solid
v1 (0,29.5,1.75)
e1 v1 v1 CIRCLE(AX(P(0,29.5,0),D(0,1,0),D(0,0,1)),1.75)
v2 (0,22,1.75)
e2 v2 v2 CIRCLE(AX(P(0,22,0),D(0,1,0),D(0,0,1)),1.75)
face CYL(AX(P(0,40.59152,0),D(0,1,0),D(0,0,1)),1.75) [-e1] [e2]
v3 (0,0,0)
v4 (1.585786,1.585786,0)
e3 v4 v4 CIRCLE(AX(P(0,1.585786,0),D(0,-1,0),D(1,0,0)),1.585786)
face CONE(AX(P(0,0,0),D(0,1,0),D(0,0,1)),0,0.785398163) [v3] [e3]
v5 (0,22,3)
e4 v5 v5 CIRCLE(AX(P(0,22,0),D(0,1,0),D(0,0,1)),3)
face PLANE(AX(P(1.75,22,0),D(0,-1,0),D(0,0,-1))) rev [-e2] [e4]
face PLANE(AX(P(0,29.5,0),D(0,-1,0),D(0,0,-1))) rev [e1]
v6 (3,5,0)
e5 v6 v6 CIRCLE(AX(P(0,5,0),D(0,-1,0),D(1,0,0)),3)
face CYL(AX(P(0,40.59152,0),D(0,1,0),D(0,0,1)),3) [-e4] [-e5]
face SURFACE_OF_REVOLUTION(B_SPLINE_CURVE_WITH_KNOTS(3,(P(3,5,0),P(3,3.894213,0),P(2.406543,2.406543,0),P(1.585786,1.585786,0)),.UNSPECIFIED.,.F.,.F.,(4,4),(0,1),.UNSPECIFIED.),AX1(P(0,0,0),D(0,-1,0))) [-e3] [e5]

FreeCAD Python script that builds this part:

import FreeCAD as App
import Part
import Sketcher
from FreeCAD import Vector
Q = App.Units.Quantity

doc = App.newDocument("Part")
body = doc.addObject("PartDesign::Body", "Body")

sketch1 = body.newObject("Sketcher::SketchObject", "Sketch")
sketch1.AttachmentSupport = (doc.getObject("XY_Plane"), [""])
sketch1.MapMode = "FlatFace"
sketch1.addGeometry(Part.LineSegment(Vector(0, 29.5, 0), Vector(0, 0, 0)), False)
sketch1.addGeometry(Part.LineSegment(Vector(0, 0, 0), Vector(3, 3, 0)), False)
sketch1.addGeometry(Part.LineSegment(Vector(3, 3, 0), Vector(3, 22, 0)), False)
sketch1.addGeometry(Part.LineSegment(Vector(3, 22, 0), Vector(1.8, 22, 0)), False)
sketch1.addGeometry(Part.LineSegment(Vector(1.8, 22, 0), Vector(1.8, 29.5, 0)), False)
sketch1.addGeometry(Part.LineSegment(Vector(1.8, 29.5, 0), Vector(0, 29.5, 0)), False)
sketch1.addConstraint(Sketcher.Constraint("Coincident", 0, 2, 1, 1))
sketch1.addConstraint(Sketcher.Constraint("Coincident", 1, 2, 2, 1))
sketch1.addConstraint(Sketcher.Constraint("Coincident", 2, 2, 3, 1))
sketch1.addConstraint(Sketcher.Constraint("Coincident", 3, 2, 4, 1))
sketch1.addConstraint(Sketcher.Constraint("Coincident", 4, 2, 5, 1))
sketch1.addConstraint(Sketcher.Constraint("Coincident", 5, 2, 0, 1))
sketch1.addConstraint(Sketcher.Constraint("Vertical", 0))
sketch1.addConstraint(Sketcher.Constraint("Vertical", 2))
sketch1.addConstraint(Sketcher.Constraint("Horizontal", 3))
sketch1.addConstraint(Sketcher.Constraint("Vertical", 4))
sketch1.addConstraint(Sketcher.Constraint("Horizontal", 5))
sketch1.addConstraint(Sketcher.Constraint("Coincident", 0, 2, -1, 1))
sketch1.addConstraint(Sketcher.Constraint("DistanceY", 2, 1, 2, 2, Q("19 mm")))
sketch1.addConstraint(Sketcher.Constraint("Angle", 1, Q("45 deg")))
sketch1.addConstraint(Sketcher.Constraint("DistanceY", 0, 2, 0, 1, Q("29.5 mm")))
sketch1.addConstraint(Sketcher.Constraint("DistanceY", 4, 1, 4, 2, Q("7.5 mm")))
sketch1.addConstraint(Sketcher.Constraint("DistanceX", 3, 2, 3, 1, Q("1.25 mm")))
revolution = body.newObject("PartDesign::Revolution", "Revolution")
revolution.Profile = sketch1
revolution.ReferenceAxis = (sketch1, ["V_Axis"])
revolution.Angle = 360

sketch2 = body.newObject("Sketcher::SketchObject", "Sketch001")
sketch2.AttachmentSupport = (doc.getObject("XY_Plane"), [""])
sketch2.MapMode = "FlatFace"
sketch2.addGeometry(Part.LineSegment(Vector(3, 3, 0), Vector(3, 5, 0)), False)
sketch2.addGeometry(Part.BSplineCurve([Vector(3, 5, 0), Vector(3, 3.894213, 0), Vector(2.406543, 2.406543, 0), Vector(1.585786, 1.585786, 0)], [4, 4], [0, 1], False, 3, [1, 1, 1, 1], False), False)
sketch2.addGeometry(Part.LineSegment(Vector(1.585786, 1.585786, 0), Vector(3, 3, 0)), False)
sketch2.addConstraint(Sketcher.Constraint("Block", 1))
sketch2.addConstraint(Sketcher.Constraint("Coincident", 0, 2, 1, 1))
sketch2.addConstraint(Sketcher.Constraint("Coincident", 1, 2, 2, 1))
sketch2.addConstraint(Sketcher.Constraint("Coincident", 2, 2, 0, 1))
sketch2.addConstraint(Sketcher.Constraint("Vertical", 0))
sketch2.addConstraint(Sketcher.Constraint("DistanceY", 0, 1, 0, 2, Q("2 mm")))
groove = body.newObject("PartDesign::Groove", "Groove")
groove.Profile = sketch2
groove.ReferenceAxis = (sketch2, ["V_Axis"])
groove.Angle = 360

doc.recompute()
